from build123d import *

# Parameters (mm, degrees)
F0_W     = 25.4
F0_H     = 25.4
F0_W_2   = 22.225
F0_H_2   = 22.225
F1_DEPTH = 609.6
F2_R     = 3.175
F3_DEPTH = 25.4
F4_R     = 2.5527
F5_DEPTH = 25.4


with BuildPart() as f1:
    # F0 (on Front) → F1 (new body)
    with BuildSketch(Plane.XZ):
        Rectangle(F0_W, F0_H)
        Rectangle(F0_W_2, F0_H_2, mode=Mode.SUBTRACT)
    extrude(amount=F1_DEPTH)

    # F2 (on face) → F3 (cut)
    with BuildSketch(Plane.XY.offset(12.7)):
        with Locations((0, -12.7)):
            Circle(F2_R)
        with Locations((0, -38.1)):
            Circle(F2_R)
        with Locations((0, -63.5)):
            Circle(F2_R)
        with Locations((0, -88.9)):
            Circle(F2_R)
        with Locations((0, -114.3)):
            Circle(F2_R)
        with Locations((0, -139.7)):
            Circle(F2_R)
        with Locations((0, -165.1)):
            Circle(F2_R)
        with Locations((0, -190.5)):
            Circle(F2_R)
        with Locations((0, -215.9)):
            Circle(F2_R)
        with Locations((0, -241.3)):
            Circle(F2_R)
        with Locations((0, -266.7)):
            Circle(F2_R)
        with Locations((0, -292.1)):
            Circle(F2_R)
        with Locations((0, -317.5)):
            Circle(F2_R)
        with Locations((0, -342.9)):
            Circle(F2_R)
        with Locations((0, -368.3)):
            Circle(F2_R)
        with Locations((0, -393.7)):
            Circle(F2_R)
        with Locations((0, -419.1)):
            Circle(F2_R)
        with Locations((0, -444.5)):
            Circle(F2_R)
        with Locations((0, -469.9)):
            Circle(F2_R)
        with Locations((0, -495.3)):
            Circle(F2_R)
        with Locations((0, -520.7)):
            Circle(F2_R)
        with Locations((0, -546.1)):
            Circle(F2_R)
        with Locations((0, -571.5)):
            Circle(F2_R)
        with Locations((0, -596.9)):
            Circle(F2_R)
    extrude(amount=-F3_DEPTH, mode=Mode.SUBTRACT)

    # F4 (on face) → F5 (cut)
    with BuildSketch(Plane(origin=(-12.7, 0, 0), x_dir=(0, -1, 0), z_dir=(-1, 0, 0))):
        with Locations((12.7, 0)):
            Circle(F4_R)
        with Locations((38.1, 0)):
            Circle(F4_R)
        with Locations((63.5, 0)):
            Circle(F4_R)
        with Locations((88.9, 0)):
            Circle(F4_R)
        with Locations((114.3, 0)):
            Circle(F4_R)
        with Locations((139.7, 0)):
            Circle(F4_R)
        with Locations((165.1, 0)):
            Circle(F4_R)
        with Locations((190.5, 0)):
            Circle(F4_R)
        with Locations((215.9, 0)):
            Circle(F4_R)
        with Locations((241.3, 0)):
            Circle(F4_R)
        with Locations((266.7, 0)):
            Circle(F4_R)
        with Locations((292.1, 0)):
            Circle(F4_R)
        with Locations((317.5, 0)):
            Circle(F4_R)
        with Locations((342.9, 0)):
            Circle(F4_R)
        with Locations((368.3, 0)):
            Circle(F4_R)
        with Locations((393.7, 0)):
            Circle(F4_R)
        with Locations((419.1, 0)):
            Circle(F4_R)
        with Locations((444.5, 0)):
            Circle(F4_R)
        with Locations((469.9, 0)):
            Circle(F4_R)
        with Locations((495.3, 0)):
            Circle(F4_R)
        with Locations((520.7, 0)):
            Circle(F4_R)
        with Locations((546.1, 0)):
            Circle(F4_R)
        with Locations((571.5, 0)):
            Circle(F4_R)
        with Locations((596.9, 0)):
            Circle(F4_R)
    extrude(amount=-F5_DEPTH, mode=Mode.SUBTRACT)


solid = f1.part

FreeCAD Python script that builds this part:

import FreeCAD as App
import Part
import Sketcher
from FreeCAD import Vector
Q = App.Units.Quantity

doc = App.newDocument("Part")
body = doc.addObject("PartDesign::Body", "Body")

sketch1 = body.newObject("Sketcher::SketchObject", "Sketch")
sketch1.AttachmentSupport = (doc.getObject("XZ_Plane"), [""])
sketch1.MapMode = "FlatFace"
sketch1.addGeometry(Part.LineSegment(Vector(-13, 13, 0), Vector(-13, -13, 0)), False)
sketch1.addGeometry(Part.LineSegment(Vector(-13, -13, 0), Vector(13, -13, 0)), False)
sketch1.addGeometry(Part.LineSegment(Vector(13, -13, 0), Vector(13, 13, 0)), False)
sketch1.addGeometry(Part.LineSegment(Vector(13, 13, 0), Vector(-13, 13, 0)), False)
sketch1.addGeometry(Part.LineSegment(Vector(11, -11, 0), Vector(-11, -11, 0)), False)
sketch1.addGeometry(Part.LineSegment(Vector(-11, -11, 0), Vector(-11, 11, 0)), False)
sketch1.addGeometry(Part.LineSegment(Vector(-11, 11, 0), Vector(11, 11, 0)), False)
sketch1.addGeometry(Part.LineSegment(Vector(11, 11, 0), Vector(11, -11, 0)), False)
sketch1.addConstraint(Sketcher.Constraint("Coincident", 0, 2, 1, 1))
sketch1.addConstraint(Sketcher.Constraint("Coincident", 1, 2, 2, 1))
sketch1.addConstraint(Sketcher.Constraint("Coincident", 2, 2, 3, 1))
sketch1.addConstraint(Sketcher.Constraint("Coincident", 3, 2, 0, 1))
sketch1.addConstraint(Sketcher.Constraint("Coincident", 4, 2, 5, 1))
sketch1.addConstraint(Sketcher.Constraint("Coincident", 5, 2, 6, 1))
sketch1.addConstraint(Sketcher.Constraint("Coincident", 6, 2, 7, 1))
sketch1.addConstraint(Sketcher.Constraint("Coincident", 7, 2, 4, 1))
sketch1.addConstraint(Sketcher.Constraint("Vertical", 0))
sketch1.addConstraint(Sketcher.Constraint("Horizontal", 1))
sketch1.addConstraint(Sketcher.Constraint("Vertical", 2))
sketch1.addConstraint(Sketcher.Constraint("Horizontal", 3))
sketch1.addConstraint(Sketcher.Constraint("Horizontal", 4))
sketch1.addConstraint(Sketcher.Constraint("Vertical", 5))
sketch1.addConstraint(Sketcher.Constraint("Horizontal", 6))
sketch1.addConstraint(Sketcher.Constraint("Vertical", 7))
sketch1.addConstraint(Sketcher.Constraint("Symmetric", 0, 2, 2, 2, -1, 1))
sketch1.addConstraint(Sketcher.Constraint("Symmetric", 4, 2, 6, 2, -1, 1))
sketch1.addConstraint(Sketcher.Constraint("Equal", 3, 0))
sketch1.addConstraint(Sketcher.Constraint("Equal", 6, 5))
sketch1.addConstraint(Sketcher.Constraint("DistanceX", 1, 1, 1, 2, Q("1 in")))
sketch1.addConstraint(Sketcher.Constraint("DistanceX", 4, 2, 4, 1, Q("0.875 in")))
pad1 = body.newObject("PartDesign::Pad", "Pad")
pad1.Profile = sketch1
pad1.Length = Q("24 in")

sketch2 = body.newObject("Sketcher::SketchObject", "Sketch001")
sketch2.AttachmentSupport = (doc.getObject("XY_Plane"), [""])
sketch2.MapMode = "FlatFace"
sketch2.AttachmentOffset = App.Placement(Vector(0, 0, 0.5 * 25.4), App.Rotation())
sketch2.addGeometry(Part.Circle(Vector(0, -12.7, 0), Vector(0, 0, 1), 3.2), False)
sketch2.addGeometry(Part.Circle(Vector(0, -38.1, 0), Vector(0, 0, 1), 3.2), False)
sketch2.addGeometry(Part.Circle(Vector(0, -63.5, 0), Vector(0, 0, 1), 3.2), False)
sketch2.addGeometry(Part.Circle(Vector(0, -88.9, 0), Vector(0, 0, 1), 3.2), False)
sketch2.addGeometry(Part.Circle(Vector(0, -114.3, 0), Vector(0, 0, 1), 3.2), False)
sketch2.addGeometry(Part.Circle(Vector(0, -139.7, 0), Vector(0, 0, 1), 3.2), False)
sketch2.addGeometry(Part.Circle(Vector(0, -165.1, 0), Vector(0, 0, 1), 3.2), False)
sketch2.addGeometry(Part.Circle(Vector(0, -190.5, 0), Vector(0, 0, 1), 3.2), False)
sketch2.addGeometry(Part.Circle(Vector(0, -215.9, 0), Vector(0, 0, 1), 3.2), False)
sketch2.addGeometry(Part.Circle(Vector(0, -241.3, 0), Vector(0, 0, 1), 3.2), False)
sketch2.addGeometry(Part.Circle(Vector(0, -266.7, 0), Vector(0, 0, 1), 3.2), False)
sketch2.addGeometry(Part.Circle(Vector(0, -292.1, 0), Vector(0, 0, 1), 3.2), False)
sketch2.addGeometry(Part.Circle(Vector(0, -317.5, 0), Vector(0, 0, 1), 3.2), False)
sketch2.addGeometry(Part.Circle(Vector(0, -342.9, 0), Vector(0, 0, 1), 3.2), False)
sketch2.addGeometry(Part.Circle(Vector(0, -368.3, 0), Vector(0, 0, 1), 3.2), False)
sketch2.addGeometry(Part.Circle(Vector(0, -393.7, 0), Vector(0, 0, 1), 3.2), False)
sketch2.addGeometry(Part.Circle(Vector(0, -419.1, 0), Vector(0, 0, 1), 3.2), False)
sketch2.addGeometry(Part.Circle(Vector(0, -444.5, 0), Vector(0, 0, 1), 3.2), False)
sketch2.addGeometry(Part.Circle(Vector(0, -469.9, 0), Vector(0, 0, 1), 3.2), False)
sketch2.addGeometry(Part.Circle(Vector(0, -495.3, 0), Vector(0, 0, 1), 3.2), False)
sketch2.addGeometry(Part.Circle(Vector(0, -520.7, 0), Vector(0, 0, 1), 3.2), False)
sketch2.addGeometry(Part.Circle(Vector(0, -546.1, 0), Vector(0, 0, 1), 3.2), False)
sketch2.addGeometry(Part.Circle(Vector(0, -571.5, 0), Vector(0, 0, 1), 3.2), False)
sketch2.addGeometry(Part.Circle(Vector(0, -596.9, 0), Vector(0, 0, 1), 3.2), False)
sketch2.addConstraint(Sketcher.Constraint("Equal", 0, 1))
sketch2.addConstraint(Sketcher.Constraint("Equal", 1, 2))
sketch2.addConstraint(Sketcher.Constraint("Equal", 2, 3))
sketch2.addConstraint(Sketcher.Constraint("Equal", 3, 4))
sketch2.addConstraint(Sketcher.Constraint("Equal", 4, 5))
sketch2.addConstraint(Sketcher.Constraint("Equal", 5, 6))
sketch2.addConstraint(Sketcher.Constraint("Equal", 6, 7))
sketch2.addConstraint(Sketcher.Constraint("Equal", 7, 8))
sketch2.addConstraint(Sketcher.Constraint("Equal", 8, 9))
sketch2.addConstraint(Sketcher.Constraint("Equal", 9, 10))
sketch2.addConstraint(Sketcher.Constraint("Equal", 10, 11))
sketch2.addConstraint(Sketcher.Constraint("Equal", 11, 12))
sketch2.addConstraint(Sketcher.Constraint("Equal", 12, 13))
sketch2.addConstraint(Sketcher.Constraint("Equal", 13, 14))
sketch2.addConstraint(Sketcher.Constraint("Equal", 14, 15))
sketch2.addConstraint(Sketcher.Constraint("Equal", 15, 16))
sketch2.addConstraint(Sketcher.Constraint("Equal", 16, 17))
sketch2.addConstraint(Sketcher.Constraint("Equal", 17, 18))
sketch2.addConstraint(Sketcher.Constraint("Equal", 18, 19))
sketch2.addConstraint(Sketcher.Constraint("Equal", 19, 20))
sketch2.addConstraint(Sketcher.Constraint("Equal", 20, 21))
sketch2.addConstraint(Sketcher.Constraint("Equal", 21, 22))
sketch2.addConstraint(Sketcher.Constraint("Equal", 22, 23))
sketch2.addConstraint(Sketcher.Constraint("PointOnObject", 0, 3, -2))
sketch2.addConstraint(Sketcher.Constraint("PointOnObject", 1, 3, -2))
sketch2.addConstraint(Sketcher.Constraint("PointOnObject", 2, 3, -2))
sketch2.addConstraint(Sketcher.Constraint("PointOnObject", 3, 3, -2))
sketch2.addConstraint(Sketcher.Constraint("PointOnObject", 4, 3, -2))
sketch2.addConstraint(Sketcher.Constraint("PointOnObject", 5, 3, -2))
sketch2.addConstraint(Sketcher.Constraint("PointOnObject", 6, 3, -2))
sketch2.addConstraint(Sketcher.Constraint("PointOnObject", 7, 3, -2))
sketch2.addConstraint(Sketcher.Constraint("PointOnObject", 8, 3, -2))
sketch2.addConstraint(Sketcher.Constraint("PointOnObject", 9, 3, -2))
sketch2.addConstraint(Sketcher.Constraint("PointOnObject", 10, 3, -2))
sketch2.addConstraint(Sketcher.Constraint("PointOnObject", 11, 3, -2))
sketch2.addConstraint(Sketcher.Constraint("PointOnObject", 12, 3, -2))
sketch2.addConstraint(Sketcher.Constraint("PointOnObject", 13, 3, -2))
sketch2.addConstraint(Sketcher.Constraint("PointOnObject", 14, 3, -2))
sketch2.addConstraint(Sketcher.Constraint("PointOnObject", 15, 3, -2))
sketch2.addConstraint(Sketcher.Constraint("PointOnObject", 16, 3, -2))
sketch2.addConstraint(Sketcher.Constraint("PointOnObject", 17, 3, -2))
sketch2.addConstraint(Sketcher.Constraint("PointOnObject", 18, 3, -2))
sketch2.addConstraint(Sketcher.Constraint("PointOnObject", 19, 3, -2))
sketch2.addConstraint(Sketcher.Constraint("PointOnObject", 20, 3, -2))
sketch2.addConstraint(Sketcher.Constraint("PointOnObject", 21, 3, -2))
sketch2.addConstraint(Sketcher.Constraint("PointOnObject", 22, 3, -2))
sketch2.addConstraint(Sketcher.Constraint("PointOnObject", 23, 3, -2))
sketch2.addConstraint(Sketcher.Constraint("Diameter", 0, Q("0.25 in")))
sketch2.addConstraint(Sketcher.Constraint("DistanceY", 1, 3, 0, 3, Q("1 in")))
sketch2.addConstraint(Sketcher.Constraint("DistanceY", 2, 3, 1, 3, Q("1 in")))
sketch2.addConstraint(Sketcher.Constraint("DistanceY", 3, 3, 2, 3, Q("1 in")))
sketch2.addConstraint(Sketcher.Constraint("DistanceY", 4, 3, 3, 3, Q("1 in")))
sketch2.addConstraint(Sketcher.Constraint("DistanceY", 5, 3, 4, 3, Q("1 in")))
sketch2.addConstraint(Sketcher.Constraint("DistanceY", 6, 3, 5, 3, Q("1 in")))
sketch2.addConstraint(Sketcher.Constraint("DistanceY", 7, 3, 6, 3, Q("1 in")))
sketch2.addConstraint(Sketcher.Constraint("DistanceY", 8, 3, 7, 3, Q("1 in")))
sketch2.addConstraint(Sketcher.Constraint("DistanceY", 9, 3, 8, 3, Q("1 in")))
sketch2.addConstraint(Sketcher.Constraint("DistanceY", 10, 3, 9, 3, Q("1 in")))
sketch2.addConstraint(Sketcher.Constraint("DistanceY", 11, 3, 10, 3, Q("1 in")))
sketch2.addConstraint(Sketcher.Constraint("DistanceY", 12, 3, 11, 3, Q("1 in")))
sketch2.addConstraint(Sketcher.Constraint("DistanceY", 13, 3, 12, 3, Q("1 in")))
sketch2.addConstraint(Sketcher.Constraint("DistanceY", 14, 3, 13, 3, Q("1 in")))
sketch2.addConstraint(Sketcher.Constraint("DistanceY", 15, 3, 14, 3, Q("1 in")))
sketch2.addConstraint(Sketcher.Constraint("DistanceY", 16, 3, 15, 3, Q("1 in")))
sketch2.addConstraint(Sketcher.Constraint("DistanceY", 17, 3, 16, 3, Q("1 in")))
sketch2.addConstraint(Sketcher.Constraint("DistanceY", 18, 3, 17, 3, Q("1 in")))
sketch2.addConstraint(Sketcher.Constraint("DistanceY", 19, 3, 18, 3, Q("1 in")))
sketch2.addConstraint(Sketcher.Constraint("DistanceY", 20, 3, 19, 3, Q("1 in")))
sketch2.addConstraint(Sketcher.Constraint("DistanceY", 21, 3, 20, 3, Q("1 in")))
sketch2.addConstraint(Sketcher.Constraint("DistanceY", 22, 3, 21, 3, Q("1 in")))
sketch2.addConstraint(Sketcher.Constraint("DistanceY", 23, 3, 22, 3, Q("1 in")))
sketch2.addConstraint(Sketcher.Constraint("DistanceY", 0, 3, -1, 1, Q("0.5 in")))
pocket1 = body.newObject("PartDesign::Pocket", "Pocket")
pocket1.Profile = sketch2
pocket1.Length = Q("1 in")

sketch3 = body.newObject("Sketcher::SketchObject", "Sketch002")
sketch3.AttachmentSupport = (doc.getObject("YZ_Plane"), [""])
sketch3.MapMode = "FlatFace"
sketch3.AttachmentOffset = App.Placement(Vector(0, 0, -0.5 * 25.4), App.Rotation())
sketch3.addGeometry(Part.Circle(Vector(-12.7, 0, 0), Vector(0, 0, 1), 2.6), False)
sketch3.addGeometry(Part.Circle(Vector(-38.1, 0, 0), Vector(0, 0, 1), 2.6), False)
sketch3.addGeometry(Part.Circle(Vector(-63.5, 0, 0), Vector(0, 0, 1), 2.6), False)
sketch3.addGeometry(Part.Circle(Vector(-88.9, 0, 0), Vector(0, 0, 1), 2.6), False)
sketch3.addGeometry(Part.Circle(Vector(-114.3, 0, 0), Vector(0, 0, 1), 2.6), False)
sketch3.addGeometry(Part.Circle(Vector(-139.7, 0, 0), Vector(0, 0, 1), 2.6), False)
sketch3.addGeometry(Part.Circle(Vector(-165.1, 0, 0), Vector(0, 0, 1), 2.6), False)
sketch3.addGeometry(Part.Circle(Vector(-190.5, 0, 0), Vector(0, 0, 1), 2.6), False)
sketch3.addGeometry(Part.Circle(Vector(-215.9, 0, 0), Vector(0, 0, 1), 2.6), False)
sketch3.addGeometry(Part.Circle(Vector(-241.3, 0, 0), Vector(0, 0, 1), 2.6), False)
sketch3.addGeometry(Part.Circle(Vector(-266.7, 0, 0), Vector(0, 0, 1), 2.6), False)
sketch3.addGeometry(Part.Circle(Vector(-292.1, 0, 0), Vector(0, 0, 1), 2.6), False)
sketch3.addGeometry(Part.Circle(Vector(-317.5, 0, 0), Vector(0, 0, 1), 2.6), False)
sketch3.addGeometry(Part.Circle(Vector(-342.9, 0, 0), Vector(0, 0, 1), 2.6), False)
sketch3.addGeometry(Part.Circle(Vector(-368.3, 0, 0), Vector(0, 0, 1), 2.6), False)
sketch3.addGeometry(Part.Circle(Vector(-393.7, 0, 0), Vector(0, 0, 1), 2.6), False)
sketch3.addGeometry(Part.Circle(Vector(-419.1, 0, 0), Vector(0, 0, 1), 2.6), False)
sketch3.addGeometry(Part.Circle(Vector(-444.5, 0, 0), Vector(0, 0, 1), 2.6), False)
sketch3.addGeometry(Part.Circle(Vector(-469.9, 0, 0), Vector(0, 0, 1), 2.6), False)
sketch3.addGeometry(Part.Circle(Vector(-495.3, 0, 0), Vector(0, 0, 1), 2.6), False)
sketch3.addGeometry(Part.Circle(Vector(-520.7, 0, 0), Vector(0, 0, 1), 2.6), False)
sketch3.addGeometry(Part.Circle(Vector(-546.1, 0, 0), Vector(0, 0, 1), 2.6), False)
sketch3.addGeometry(Part.Circle(Vector(-571.5, 0, 0), Vector(0, 0, 1), 2.6), False)
sketch3.addGeometry(Part.Circle(Vector(-596.9, 0, 0), Vector(0, 0, 1), 2.6), False)
sketch3.addConstraint(Sketcher.Constraint("Equal", 0, 1))
sketch3.addConstraint(Sketcher.Constraint("Equal", 1, 2))
sketch3.addConstraint(Sketcher.Constraint("Equal", 2, 3))
sketch3.addConstraint(Sketcher.Constraint("Equal", 3, 4))
sketch3.addConstraint(Sketcher.Constraint("Equal", 4, 5))
sketch3.addConstraint(Sketcher.Constraint("Equal", 5, 6))
sketch3.addConstraint(Sketcher.Constraint("Equal", 6, 7))
sketch3.addConstraint(Sketcher.Constraint("Equal", 7, 8))
sketch3.addConstraint(Sketcher.Constraint("Equal", 8, 9))
sketch3.addConstraint(Sketcher.Constraint("Equal", 9, 10))
sketch3.addConstraint(Sketcher.Constraint("Equal", 10, 11))
sketch3.addConstraint(Sketcher.Constraint("Equal", 11, 12))
sketch3.addConstraint(Sketcher.Constraint("Equal", 12, 13))
sketch3.addConstraint(Sketcher.Constraint("Equal", 13, 14))
sketch3.addConstraint(Sketcher.Constraint("Equal", 14, 15))
sketch3.addConstraint(Sketcher.Constraint("Equal", 15, 16))
sketch3.addConstraint(Sketcher.Constraint("Equal", 16, 17))
sketch3.addConstraint(Sketcher.Constraint("Equal", 17, 18))
sketch3.addConstraint(Sketcher.Constraint("Equal", 18, 19))
sketch3.addConstraint(Sketcher.Constraint("Equal", 19, 20))
sketch3.addConstraint(Sketcher.Constraint("Equal", 20, 21))
sketch3.addConstraint(Sketcher.Constraint("Equal", 21, 22))
sketch3.addConstraint(Sketcher.Constraint("Equal", 22, 23))
sketch3.addConstraint(Sketcher.Constraint("PointOnObject", 0, 3, -1))
sketch3.addConstraint(Sketcher.Constraint("PointOnObject", 1, 3, -1))
sketch3.addConstraint(Sketcher.Constraint("PointOnObject", 2, 3, -1))
sketch3.addConstraint(Sketcher.Constraint("PointOnObject", 3, 3, -1))
sketch3.addConstraint(Sketcher.Constraint("PointOnObject", 4, 3, -1))
sketch3.addConstraint(Sketcher.Constraint("PointOnObject", 5, 3, -1))
sketch3.addConstraint(Sketcher.Constraint("PointOnObject", 6, 3, -1))
sketch3.addConstraint(Sketcher.Constraint("PointOnObject", 7, 3, -1))
sketch3.addConstraint(Sketcher.Constraint("PointOnObject", 8, 3, -1))
sketch3.addConstraint(Sketcher.Constraint("PointOnObject", 9, 3, -1))
sketch3.addConstraint(Sketcher.Constraint("PointOnObject", 10, 3, -1))
sketch3.addConstraint(Sketcher.Constraint("PointOnObject", 11, 3, -1))
sketch3.addConstraint(Sketcher.Constraint("PointOnObject", 12, 3, -1))
sketch3.addConstraint(Sketcher.Constraint("PointOnObject", 13, 3, -1))
sketch3.addConstraint(Sketcher.Constraint("PointOnObject", 14, 3, -1))
sketch3.addConstraint(Sketcher.Constraint("PointOnObject", 15, 3, -1))
sketch3.addConstraint(Sketcher.Constraint("PointOnObject", 16, 3, -1))
sketch3.addConstraint(Sketcher.Constraint("PointOnObject", 17, 3, -1))
sketch3.addConstraint(Sketcher.Constraint("PointOnObject", 18, 3, -1))
sketch3.addConstraint(Sketcher.Constraint("PointOnObject", 19, 3, -1))
sketch3.addConstraint(Sketcher.Constraint("PointOnObject", 20, 3, -1))
sketch3.addConstraint(Sketcher.Constraint("PointOnObject", 21, 3, -1))
sketch3.addConstraint(Sketcher.Constraint("PointOnObject", 22, 3, -1))
sketch3.addConstraint(Sketcher.Constraint("PointOnObject", 23, 3, -1))
sketch3.addConstraint(Sketcher.Constraint("Diameter", 0, Q("0.201 in")))
sketch3.addConstraint(Sketcher.Constraint("DistanceX", 1, 3, 0, 3, Q("1 in")))
sketch3.addConstraint(Sketcher.Constraint("DistanceX", 2, 3, 1, 3, Q("1 in")))
sketch3.addConstraint(Sketcher.Constraint("DistanceX", 3, 3, 2, 3, Q("1 in")))
sketch3.addConstraint(Sketcher.Constraint("DistanceX", 4, 3, 3, 3, Q("1 in")))
sketch3.addConstraint(Sketcher.Constraint("DistanceX", 5, 3, 4, 3, Q("1 in")))
sketch3.addConstraint(Sketcher.Constraint("DistanceX", 6, 3, 5, 3, Q("1 in")))
sketch3.addConstraint(Sketcher.Constraint("DistanceX", 7, 3, 6, 3, Q("1 in")))
sketch3.addConstraint(Sketcher.Constraint("DistanceX", 8, 3, 7, 3, Q("1 in")))
sketch3.addConstraint(Sketcher.Constraint("DistanceX", 9, 3, 8, 3, Q("1 in")))
sketch3.addConstraint(Sketcher.Constraint("DistanceX", 10, 3, 9, 3, Q("1 in")))
sketch3.addConstraint(Sketcher.Constraint("DistanceX", 11, 3, 10, 3, Q("1 in")))
sketch3.addConstraint(Sketcher.Constraint("DistanceX", 12, 3, 11, 3, Q("1 in")))
sketch3.addConstraint(Sketcher.Constraint("DistanceX", 13, 3, 12, 3, Q("1 in")))
sketch3.addConstraint(Sketcher.Constraint("DistanceX", 14, 3, 13, 3, Q("1 in")))
sketch3.addConstraint(Sketcher.Constraint("DistanceX", 15, 3, 14, 3, Q("1 in")))
sketch3.addConstraint(Sketcher.Constraint("DistanceX", 16, 3, 15, 3, Q("1 in")))
sketch3.addConstraint(Sketcher.Constraint("DistanceX", 17, 3, 16, 3, Q("1 in")))
sketch3.addConstraint(Sketcher.Constraint("DistanceX", 18, 3, 17, 3, Q("1 in")))
sketch3.addConstraint(Sketcher.Constraint("DistanceX", 19, 3, 18, 3, Q("1 in")))
sketch3.addConstraint(Sketcher.Constraint("DistanceX", 20, 3, 19, 3, Q("1 in")))
sketch3.addConstraint(Sketcher.Constraint("DistanceX", 21, 3, 20, 3, Q("1 in")))
sketch3.addConstraint(Sketcher.Constraint("DistanceX", 22, 3, 21, 3, Q("1 in")))
sketch3.addConstraint(Sketcher.Constraint("DistanceX", 23, 3, 22, 3, Q("1 in")))
sketch3.addConstraint(Sketcher.Constraint("DistanceX", 0, 3, -1, 1, Q("0.5 in")))
pocket2 = body.newObject("PartDesign::Pocket", "Pocket001")
pocket2.Profile = sketch3
pocket2.Length = Q("1 in")
pocket2.Reversed = True

doc.recompute()
